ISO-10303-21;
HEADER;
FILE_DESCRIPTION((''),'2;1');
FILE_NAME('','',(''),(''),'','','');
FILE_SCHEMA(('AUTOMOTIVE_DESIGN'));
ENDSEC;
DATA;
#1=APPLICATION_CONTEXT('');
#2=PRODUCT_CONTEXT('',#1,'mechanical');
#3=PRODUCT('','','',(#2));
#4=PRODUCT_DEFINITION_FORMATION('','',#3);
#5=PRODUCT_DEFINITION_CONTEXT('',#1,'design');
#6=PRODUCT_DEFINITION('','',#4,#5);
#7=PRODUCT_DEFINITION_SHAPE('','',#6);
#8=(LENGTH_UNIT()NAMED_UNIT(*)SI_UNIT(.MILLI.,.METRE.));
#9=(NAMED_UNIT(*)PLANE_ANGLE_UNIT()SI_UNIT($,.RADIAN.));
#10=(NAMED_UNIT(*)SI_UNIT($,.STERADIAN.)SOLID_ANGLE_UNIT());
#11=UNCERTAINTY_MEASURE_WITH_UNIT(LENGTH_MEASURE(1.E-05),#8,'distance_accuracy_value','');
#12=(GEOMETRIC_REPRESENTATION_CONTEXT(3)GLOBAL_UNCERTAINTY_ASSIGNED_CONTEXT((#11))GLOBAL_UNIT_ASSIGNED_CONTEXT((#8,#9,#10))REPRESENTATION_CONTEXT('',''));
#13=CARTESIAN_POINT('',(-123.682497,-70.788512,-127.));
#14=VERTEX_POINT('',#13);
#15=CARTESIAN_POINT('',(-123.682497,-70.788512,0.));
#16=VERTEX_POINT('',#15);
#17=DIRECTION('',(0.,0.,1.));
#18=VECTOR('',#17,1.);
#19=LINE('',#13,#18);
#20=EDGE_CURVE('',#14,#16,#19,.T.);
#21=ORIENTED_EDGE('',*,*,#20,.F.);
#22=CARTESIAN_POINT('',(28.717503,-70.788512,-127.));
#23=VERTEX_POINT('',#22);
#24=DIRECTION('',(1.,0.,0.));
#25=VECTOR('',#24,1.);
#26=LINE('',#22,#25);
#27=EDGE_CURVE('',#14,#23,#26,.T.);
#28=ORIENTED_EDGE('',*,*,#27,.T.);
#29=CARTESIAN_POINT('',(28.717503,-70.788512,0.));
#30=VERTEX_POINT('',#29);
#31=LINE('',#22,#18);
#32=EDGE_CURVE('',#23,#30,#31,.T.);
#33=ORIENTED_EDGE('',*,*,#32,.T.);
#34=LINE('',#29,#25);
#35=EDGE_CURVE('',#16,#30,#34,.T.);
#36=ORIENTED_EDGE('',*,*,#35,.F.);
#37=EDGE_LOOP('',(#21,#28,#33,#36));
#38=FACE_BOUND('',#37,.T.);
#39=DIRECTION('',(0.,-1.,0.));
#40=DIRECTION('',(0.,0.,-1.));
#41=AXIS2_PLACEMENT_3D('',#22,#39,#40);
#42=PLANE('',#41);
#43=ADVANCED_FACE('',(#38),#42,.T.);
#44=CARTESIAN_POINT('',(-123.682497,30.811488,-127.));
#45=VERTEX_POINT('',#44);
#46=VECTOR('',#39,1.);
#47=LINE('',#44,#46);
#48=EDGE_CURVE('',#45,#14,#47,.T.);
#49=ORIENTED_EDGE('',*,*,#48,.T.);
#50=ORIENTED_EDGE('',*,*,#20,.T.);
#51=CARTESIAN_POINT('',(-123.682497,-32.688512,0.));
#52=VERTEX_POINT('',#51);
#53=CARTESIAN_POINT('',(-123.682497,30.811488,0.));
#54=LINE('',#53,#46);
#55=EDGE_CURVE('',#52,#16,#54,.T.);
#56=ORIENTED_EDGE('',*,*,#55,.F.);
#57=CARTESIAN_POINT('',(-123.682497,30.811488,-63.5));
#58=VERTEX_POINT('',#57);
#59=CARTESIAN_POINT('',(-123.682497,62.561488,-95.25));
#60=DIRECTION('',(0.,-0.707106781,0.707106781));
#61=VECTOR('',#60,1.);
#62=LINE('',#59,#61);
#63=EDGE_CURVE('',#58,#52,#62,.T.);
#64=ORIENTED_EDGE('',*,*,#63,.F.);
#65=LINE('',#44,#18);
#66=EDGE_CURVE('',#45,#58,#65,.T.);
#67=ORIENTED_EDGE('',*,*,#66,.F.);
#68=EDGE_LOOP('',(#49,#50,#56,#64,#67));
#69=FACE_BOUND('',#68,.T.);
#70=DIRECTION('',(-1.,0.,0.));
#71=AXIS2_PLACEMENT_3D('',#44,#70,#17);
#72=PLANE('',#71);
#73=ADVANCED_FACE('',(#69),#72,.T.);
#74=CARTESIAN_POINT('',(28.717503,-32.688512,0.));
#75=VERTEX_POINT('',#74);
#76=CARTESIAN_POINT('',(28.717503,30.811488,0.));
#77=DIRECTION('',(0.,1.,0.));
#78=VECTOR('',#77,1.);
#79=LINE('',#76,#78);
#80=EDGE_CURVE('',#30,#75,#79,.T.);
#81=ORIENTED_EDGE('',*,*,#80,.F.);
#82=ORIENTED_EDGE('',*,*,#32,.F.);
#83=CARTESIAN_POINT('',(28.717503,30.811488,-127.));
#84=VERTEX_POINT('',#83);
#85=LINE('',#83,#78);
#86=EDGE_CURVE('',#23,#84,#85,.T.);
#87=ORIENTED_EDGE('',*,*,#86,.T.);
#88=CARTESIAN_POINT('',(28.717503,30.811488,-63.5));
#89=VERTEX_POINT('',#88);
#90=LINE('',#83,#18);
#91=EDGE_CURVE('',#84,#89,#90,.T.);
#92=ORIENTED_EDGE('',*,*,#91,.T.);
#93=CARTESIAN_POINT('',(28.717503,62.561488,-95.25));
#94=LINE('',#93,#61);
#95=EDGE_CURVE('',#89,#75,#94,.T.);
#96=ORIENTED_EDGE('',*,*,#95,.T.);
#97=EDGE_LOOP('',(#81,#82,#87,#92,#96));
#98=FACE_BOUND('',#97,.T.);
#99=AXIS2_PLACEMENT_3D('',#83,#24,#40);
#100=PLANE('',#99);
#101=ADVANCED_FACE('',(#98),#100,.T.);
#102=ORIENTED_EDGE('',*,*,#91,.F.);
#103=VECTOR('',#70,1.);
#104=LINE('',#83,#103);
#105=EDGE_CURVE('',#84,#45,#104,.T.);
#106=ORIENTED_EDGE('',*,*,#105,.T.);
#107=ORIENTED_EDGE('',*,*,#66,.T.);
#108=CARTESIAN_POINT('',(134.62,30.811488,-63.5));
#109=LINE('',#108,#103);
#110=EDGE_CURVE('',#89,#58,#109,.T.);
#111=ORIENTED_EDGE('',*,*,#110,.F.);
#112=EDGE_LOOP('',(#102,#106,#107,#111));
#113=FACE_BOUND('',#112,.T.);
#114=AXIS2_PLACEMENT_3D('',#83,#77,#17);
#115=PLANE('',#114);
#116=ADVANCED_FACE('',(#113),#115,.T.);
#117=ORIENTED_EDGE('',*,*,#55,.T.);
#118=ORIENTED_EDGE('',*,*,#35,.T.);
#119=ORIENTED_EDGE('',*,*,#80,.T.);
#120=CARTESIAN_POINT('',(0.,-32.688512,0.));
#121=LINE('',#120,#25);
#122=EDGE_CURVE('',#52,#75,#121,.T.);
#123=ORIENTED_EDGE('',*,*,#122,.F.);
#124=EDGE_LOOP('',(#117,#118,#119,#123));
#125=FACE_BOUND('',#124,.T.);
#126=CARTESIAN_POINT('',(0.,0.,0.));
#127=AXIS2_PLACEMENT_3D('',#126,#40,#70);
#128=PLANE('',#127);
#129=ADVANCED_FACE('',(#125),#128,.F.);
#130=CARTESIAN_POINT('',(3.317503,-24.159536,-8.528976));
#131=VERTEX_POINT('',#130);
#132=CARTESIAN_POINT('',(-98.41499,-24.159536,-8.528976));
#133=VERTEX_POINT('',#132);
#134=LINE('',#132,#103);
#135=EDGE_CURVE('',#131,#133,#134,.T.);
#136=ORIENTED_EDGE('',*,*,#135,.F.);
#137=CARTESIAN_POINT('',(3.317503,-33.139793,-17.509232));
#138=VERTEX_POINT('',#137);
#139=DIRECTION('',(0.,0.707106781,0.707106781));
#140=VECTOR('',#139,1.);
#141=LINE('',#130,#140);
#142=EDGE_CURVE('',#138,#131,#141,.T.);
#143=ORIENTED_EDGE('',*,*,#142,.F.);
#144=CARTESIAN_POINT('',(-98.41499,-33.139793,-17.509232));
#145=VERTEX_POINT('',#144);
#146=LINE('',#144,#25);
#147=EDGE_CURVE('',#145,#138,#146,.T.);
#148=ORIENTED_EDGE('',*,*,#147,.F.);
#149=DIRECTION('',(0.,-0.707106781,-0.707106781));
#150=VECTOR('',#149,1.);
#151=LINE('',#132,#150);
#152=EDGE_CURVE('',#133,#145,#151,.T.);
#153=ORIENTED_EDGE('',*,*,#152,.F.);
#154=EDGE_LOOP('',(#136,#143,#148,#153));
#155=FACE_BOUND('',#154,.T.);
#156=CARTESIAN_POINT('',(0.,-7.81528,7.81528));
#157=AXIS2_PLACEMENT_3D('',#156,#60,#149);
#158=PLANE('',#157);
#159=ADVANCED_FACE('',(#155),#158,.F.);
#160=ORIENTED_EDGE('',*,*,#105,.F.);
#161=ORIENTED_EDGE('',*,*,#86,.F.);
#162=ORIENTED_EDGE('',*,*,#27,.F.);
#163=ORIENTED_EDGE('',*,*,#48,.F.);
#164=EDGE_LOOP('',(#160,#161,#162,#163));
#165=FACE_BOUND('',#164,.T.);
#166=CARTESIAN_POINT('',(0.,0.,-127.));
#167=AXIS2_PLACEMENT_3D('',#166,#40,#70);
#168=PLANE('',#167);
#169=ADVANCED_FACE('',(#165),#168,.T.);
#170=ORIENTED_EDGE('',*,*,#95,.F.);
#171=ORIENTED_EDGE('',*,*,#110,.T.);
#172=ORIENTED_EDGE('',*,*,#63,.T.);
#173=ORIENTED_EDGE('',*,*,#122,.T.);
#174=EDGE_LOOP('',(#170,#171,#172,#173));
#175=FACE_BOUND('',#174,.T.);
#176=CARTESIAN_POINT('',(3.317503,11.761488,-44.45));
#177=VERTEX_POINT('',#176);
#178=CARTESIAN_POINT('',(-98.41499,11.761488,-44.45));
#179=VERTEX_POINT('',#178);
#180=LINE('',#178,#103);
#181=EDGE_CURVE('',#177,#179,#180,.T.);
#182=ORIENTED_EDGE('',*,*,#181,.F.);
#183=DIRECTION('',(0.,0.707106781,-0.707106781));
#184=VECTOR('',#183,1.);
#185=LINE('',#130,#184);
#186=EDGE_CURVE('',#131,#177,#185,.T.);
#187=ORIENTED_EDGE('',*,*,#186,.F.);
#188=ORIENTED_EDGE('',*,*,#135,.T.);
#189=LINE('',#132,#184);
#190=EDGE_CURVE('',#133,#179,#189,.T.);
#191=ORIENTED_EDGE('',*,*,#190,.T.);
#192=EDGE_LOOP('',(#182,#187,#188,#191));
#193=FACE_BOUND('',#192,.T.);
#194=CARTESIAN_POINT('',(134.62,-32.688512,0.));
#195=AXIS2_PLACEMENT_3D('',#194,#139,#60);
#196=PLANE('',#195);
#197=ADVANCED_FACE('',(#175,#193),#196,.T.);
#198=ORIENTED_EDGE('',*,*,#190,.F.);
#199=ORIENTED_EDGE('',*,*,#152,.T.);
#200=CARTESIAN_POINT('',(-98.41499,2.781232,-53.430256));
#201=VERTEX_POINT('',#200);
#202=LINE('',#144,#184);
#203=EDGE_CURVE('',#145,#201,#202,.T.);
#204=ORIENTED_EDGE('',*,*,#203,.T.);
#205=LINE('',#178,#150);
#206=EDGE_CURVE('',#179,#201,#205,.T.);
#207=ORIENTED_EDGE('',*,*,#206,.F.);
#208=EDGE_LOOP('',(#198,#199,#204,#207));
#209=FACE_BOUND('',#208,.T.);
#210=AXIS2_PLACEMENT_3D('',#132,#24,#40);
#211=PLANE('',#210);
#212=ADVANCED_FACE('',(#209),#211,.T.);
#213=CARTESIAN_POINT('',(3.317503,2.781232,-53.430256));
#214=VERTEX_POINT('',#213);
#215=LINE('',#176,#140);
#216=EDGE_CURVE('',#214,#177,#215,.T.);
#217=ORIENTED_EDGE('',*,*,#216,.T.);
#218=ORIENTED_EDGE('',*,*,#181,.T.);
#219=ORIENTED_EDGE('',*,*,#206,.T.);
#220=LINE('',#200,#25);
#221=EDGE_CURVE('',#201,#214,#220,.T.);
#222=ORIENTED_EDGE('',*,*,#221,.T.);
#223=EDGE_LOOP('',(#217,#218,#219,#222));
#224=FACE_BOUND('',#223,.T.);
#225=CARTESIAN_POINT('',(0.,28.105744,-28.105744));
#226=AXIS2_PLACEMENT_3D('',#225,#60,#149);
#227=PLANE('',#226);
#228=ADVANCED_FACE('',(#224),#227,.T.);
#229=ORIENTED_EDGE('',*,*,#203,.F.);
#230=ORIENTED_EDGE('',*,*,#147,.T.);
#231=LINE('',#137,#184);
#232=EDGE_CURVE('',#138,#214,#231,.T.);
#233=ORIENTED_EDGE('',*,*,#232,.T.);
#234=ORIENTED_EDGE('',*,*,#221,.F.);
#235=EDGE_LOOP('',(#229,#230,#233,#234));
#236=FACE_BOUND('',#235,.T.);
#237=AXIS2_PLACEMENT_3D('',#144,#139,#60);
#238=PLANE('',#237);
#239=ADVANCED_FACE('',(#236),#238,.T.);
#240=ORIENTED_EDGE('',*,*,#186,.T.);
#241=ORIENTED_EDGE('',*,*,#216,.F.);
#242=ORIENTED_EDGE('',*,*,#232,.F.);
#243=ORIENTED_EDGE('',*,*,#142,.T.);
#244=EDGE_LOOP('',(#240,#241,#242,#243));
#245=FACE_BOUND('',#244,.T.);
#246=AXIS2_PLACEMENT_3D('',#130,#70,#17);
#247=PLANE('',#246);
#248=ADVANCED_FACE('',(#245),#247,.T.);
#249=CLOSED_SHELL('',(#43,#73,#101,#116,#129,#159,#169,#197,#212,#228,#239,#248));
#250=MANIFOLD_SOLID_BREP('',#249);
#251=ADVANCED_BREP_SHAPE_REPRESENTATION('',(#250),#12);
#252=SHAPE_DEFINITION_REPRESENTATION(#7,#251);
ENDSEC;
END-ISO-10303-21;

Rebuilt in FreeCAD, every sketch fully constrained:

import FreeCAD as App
import Part
import Sketcher

V = App.Vector
Q = App.Units.Quantity

doc = App.newDocument("Part")
body = doc.addObject("PartDesign::Body", "Body")

sketch1 = doc.addObject("Sketcher::SketchObject", "Sketch")
body.addObject(sketch1)
sketch1.AttachmentSupport = (doc.XY_Plane, [""])
sketch1.MapMode = "FlatFace"
sketch1.addGeometry(Part.LineSegment(V(-124, 31, 0), V(-124, -71, 0)), False)
sketch1.addGeometry(Part.LineSegment(V(-124, -71, 0), V(29, -71, 0)), False)
sketch1.addGeometry(Part.LineSegment(V(29, -71, 0), V(29, 31, 0)), False)
sketch1.addGeometry(Part.LineSegment(V(29, 31, 0), V(-124, 31, 0)), False)
sketch1.addConstraint(Sketcher.Constraint("Coincident", 0, 2, 1, 1))
sketch1.addConstraint(Sketcher.Constraint("Coincident", 1, 2, 2, 1))
sketch1.addConstraint(Sketcher.Constraint("Coincident", 2, 2, 3, 1))
sketch1.addConstraint(Sketcher.Constraint("Coincident", 3, 2, 0, 1))
sketch1.addConstraint(Sketcher.Constraint("Vertical", 0))
sketch1.addConstraint(Sketcher.Constraint("Horizontal", 1))
sketch1.addConstraint(Sketcher.Constraint("Vertical", 2))
sketch1.addConstraint(Sketcher.Constraint("Horizontal", 3))
sketch1.addConstraint(Sketcher.Constraint("DistanceX", 1, 1, 1, 2, Q("6 in")))
sketch1.addConstraint(Sketcher.Constraint("DistanceY", 0, 2, 0, 1, Q("4 in")))
sketch1.addConstraint(Sketcher.Constraint("DistanceX", 0, 2, -1, 1, Q("123.682497 mm")))
sketch1.addConstraint(Sketcher.Constraint("DistanceY", 0, 2, -1, 1, Q("70.788512 mm")))
pad1 = doc.addObject("PartDesign::Pad", "Pad")
body.addObject(pad1)
pad1.Profile = sketch1
pad1.Length = Q("5 in")
pad1.Reversed = True

sketch2 = doc.addObject("Sketcher::SketchObject", "Sketch001")
body.addObject(sketch2)
sketch2.AttachmentSupport = (doc.YZ_Plane, [""])
sketch2.MapMode = "FlatFace"
sketch2.addGeometry(Part.LineSegment(V(31, 0, 0), V(-33, 0, 0)), False)
sketch2.addGeometry(Part.LineSegment(V(-33, 0, 0), V(31, -64, 0)), False)
sketch2.addGeometry(Part.LineSegment(V(31, -64, 0), V(31, 0, 0)), False)
sketch2.addConstraint(Sketcher.Constraint("Coincident", 0, 2, 1, 1))
sketch2.addConstraint(Sketcher.Constraint("Coincident", 1, 2, 2, 1))
sketch2.addConstraint(Sketcher.Constraint("Coincident", 2, 2, 0, 1))
sketch2.addConstraint(Sketcher.Constraint("Horizontal", 0))
sketch2.addConstraint(Sketcher.Constraint("Vertical", 2))
sketch2.addConstraint(Sketcher.Constraint("PointOnObject", 0, 2, -1))
sketch2.addConstraint(Sketcher.Constraint("Equal", 0, 2))
sketch2.addConstraint(Sketcher.Constraint("DistanceX", 0, 2, 0, 1, Q("2.5 in")))
sketch2.addConstraint(Sketcher.Constraint("DistanceX", 0, 2, -1, 1, Q("32.688512 mm")))
pocket1 = doc.addObject("PartDesign::Pocket", "Pocket")
body.addObject(pocket1)
pocket1.Profile = sketch2
pocket1.Length = Q("5.3 in")
pocket1.Reversed = True

sketch3 = doc.addObject("Sketcher::SketchObject", "Sketch002")
body.addObject(sketch3)
sketch3.AttachmentSupport = (doc.YZ_Plane, [""])
sketch3.MapMode = "FlatFace"
sketch3.addGeometry(Part.LineSegment(V(31, 0, 0), V(-33, 0, 0)), False)
sketch3.addGeometry(Part.LineSegment(V(-33, 0, 0), V(31, -64, 0)), False)
sketch3.addGeometry(Part.LineSegment(V(31, -64, 0), V(31, 0, 0)), False)
sketch3.addConstraint(Sketcher.Constraint("Coincident", 0, 2, 1, 1))
sketch3.addConstraint(Sketcher.Constraint("Coincident", 1, 2, 2, 1))
sketch3.addConstraint(Sketcher.Constraint("Coincident", 2, 2, 0, 1))
sketch3.addConstraint(Sketcher.Constraint("Horizontal", 0))
sketch3.addConstraint(Sketcher.Constraint("Vertical", 2))
sketch3.addConstraint(Sketcher.Constraint("PointOnObject", 0, 2, -1))
sketch3.addConstraint(Sketcher.Constraint("Equal", 0, 2))
sketch3.addConstraint(Sketcher.Constraint("DistanceX", 0, 2, 0, 1, Q("2.5 in")))
sketch3.addConstraint(Sketcher.Constraint("DistanceX", 0, 2, -1, 1, Q("32.688512 mm")))
pocket2 = doc.addObject("PartDesign::Pocket", "Pocket001")
body.addObject(pocket2)
pocket2.Profile = sketch3
pocket2.Length = Q("5.3 in")

sketch4 = doc.addObject("Sketcher::SketchObject", "Sketch003")
body.addObject(sketch4)
sketch4.Placement = App.Placement(V(0, 28.105744, -28.105744), App.Rotation(V(1, 0, 0), V(0, 0.707106781, 0.707106781), V(0, -0.707106781, 0.707106781), "ZXY"))
sketch4.addGeometry(Part.LineSegment(V(-98, -23, 0), V(-98, -36, 0)), False)
sketch4.addGeometry(Part.LineSegment(V(-98, -36, 0), V(3, -36, 0)), False)
sketch4.addGeometry(Part.LineSegment(V(3, -36, 0), V(3, -23, 0)), False)
sketch4.addGeometry(Part.LineSegment(V(3, -23, 0), V(-98, -23, 0)), False)
sketch4.addConstraint(Sketcher.Constraint("Coincident", 0, 2, 1, 1))
sketch4.addConstraint(Sketcher.Constraint("Coincident", 1, 2, 2, 1))
sketch4.addConstraint(Sketcher.Constraint("Coincident", 2, 2, 3, 1))
sketch4.addConstraint(Sketcher.Constraint("Coincident", 3, 2, 0, 1))
sketch4.addConstraint(Sketcher.Constraint("Vertical", 0))
sketch4.addConstraint(Sketcher.Constraint("Horizontal", 1))
sketch4.addConstraint(Sketcher.Constraint("Vertical", 2))
sketch4.addConstraint(Sketcher.Constraint("Horizontal", 3))
sketch4.addConstraint(Sketcher.Constraint("DistanceY", 0, 2, 0, 1, Q("0.5 in")))
sketch4.addConstraint(Sketcher.Constraint("DistanceX", 1, 1, 1, 2, Q("101.732493 mm")))
sketch4.addConstraint(Sketcher.Constraint("DistanceX", 0, 2, -1, 1, Q("98.41499 mm")))
sketch4.addConstraint(Sketcher.Constraint("DistanceY", 0, 2, -1, 1, Q("35.814268 mm")))
pocket3 = doc.addObject("PartDesign::Pocket", "Pocket002")
body.addObject(pocket3)
pocket3.Profile = sketch4
pocket3.Length = Q("2 in")
pocket3.Reversed = True

doc.recompute()
